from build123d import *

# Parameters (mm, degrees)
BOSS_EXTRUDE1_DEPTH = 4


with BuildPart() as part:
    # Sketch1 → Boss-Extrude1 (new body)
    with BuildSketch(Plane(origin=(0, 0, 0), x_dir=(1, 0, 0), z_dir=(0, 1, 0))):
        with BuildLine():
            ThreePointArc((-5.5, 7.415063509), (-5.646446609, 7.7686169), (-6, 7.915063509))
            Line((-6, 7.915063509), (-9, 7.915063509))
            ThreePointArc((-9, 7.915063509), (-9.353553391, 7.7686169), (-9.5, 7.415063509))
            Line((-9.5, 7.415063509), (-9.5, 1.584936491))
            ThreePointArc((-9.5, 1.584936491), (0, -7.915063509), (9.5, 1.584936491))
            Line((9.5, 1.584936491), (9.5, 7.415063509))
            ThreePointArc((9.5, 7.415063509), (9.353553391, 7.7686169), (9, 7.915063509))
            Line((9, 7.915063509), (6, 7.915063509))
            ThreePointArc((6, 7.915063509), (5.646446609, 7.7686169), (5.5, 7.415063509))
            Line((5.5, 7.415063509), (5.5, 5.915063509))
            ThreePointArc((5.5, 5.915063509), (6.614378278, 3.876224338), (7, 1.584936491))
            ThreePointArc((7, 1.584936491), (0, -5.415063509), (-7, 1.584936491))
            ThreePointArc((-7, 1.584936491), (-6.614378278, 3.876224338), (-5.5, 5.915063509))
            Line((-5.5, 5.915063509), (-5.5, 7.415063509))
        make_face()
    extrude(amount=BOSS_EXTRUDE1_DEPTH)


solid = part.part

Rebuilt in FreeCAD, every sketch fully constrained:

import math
import FreeCAD as App
import Part
import Sketcher
Q = App.Units.Quantity

doc = App.newDocument("Part")
body = doc.addObject("PartDesign::Body", "Body")

sketch1 = doc.addObject("Sketcher::SketchObject", "Sketch")
body.addObject(sketch1)
sketch1.AttachmentSupport = (doc.XZ_Plane, [""])
sketch1.MapMode = "FlatFace"
sketch1.addGeometry([
    Part.ArcOfCircle(Part.Circle(App.Vector(-6, -7.415064, 0), App.Vector(0, 0, 1), 0.5), math.radians(-90), math.radians(0)),
    Part.LineSegment(App.Vector(-6, -7.915064, 0), App.Vector(-9, -7.915064, 0)),
    Part.ArcOfCircle(Part.Circle(App.Vector(-9, -7.415064, 0), App.Vector(0, 0, 1), 0.5), math.radians(180), math.radians(270)),
    Part.LineSegment(App.Vector(-9.5, -7.415064, 0), App.Vector(-9.5, -1.584936, 0)),
    Part.ArcOfCircle(Part.Circle(App.Vector(0, -1.584936, 0), App.Vector(0, 0, 1), 9.5), math.radians(0), math.radians(180)),
    Part.LineSegment(App.Vector(9.5, -1.584936, 0), App.Vector(9.5, -7.415064, 0)),
    Part.ArcOfCircle(Part.Circle(App.Vector(9, -7.415064, 0), App.Vector(0, 0, 1), 0.5), math.radians(-90), math.radians(0)),
    Part.LineSegment(App.Vector(9, -7.915064, 0), App.Vector(6, -7.915064, 0)),
    Part.ArcOfCircle(Part.Circle(App.Vector(6, -7.415064, 0), App.Vector(0, 0, 1), 0.5), math.radians(180), math.radians(270)),
    Part.LineSegment(App.Vector(5.5, -7.415064, 0), App.Vector(5.5, -5.915064, 0)),
    Part.ArcOfCircle(Part.Circle(App.Vector(0, -1.584936, 0), App.Vector(0, 0, 1), 7), math.radians(-38.213211), math.radians(0)),
    Part.ArcOfCircle(Part.Circle(App.Vector(0, -1.584936, 0), App.Vector(0, 0, 1), 7), math.radians(0), math.radians(180)),
    Part.ArcOfCircle(Part.Circle(App.Vector(0, -1.584936, 0), App.Vector(0, 0, 1), 7), math.radians(180), math.radians(218.213211)),
    Part.LineSegment(App.Vector(-5.5, -5.915064, 0), App.Vector(-5.5, -7.415064, 0)),
], False)
sketch1.addConstraint([
    Sketcher.Constraint("Tangent", 0, 1, 1, 1),
    Sketcher.Constraint("Tangent", 1, 2, 2, 2),
    Sketcher.Constraint("Tangent", 2, 1, 3, 1),
    Sketcher.Constraint("Tangent", 3, 2, 4, 2),
    Sketcher.Constraint("Tangent", 4, 1, 5, 1),
    Sketcher.Constraint("Tangent", 5, 2, 6, 2),
    Sketcher.Constraint("Tangent", 6, 1, 7, 1),
    Sketcher.Constraint("Tangent", 7, 2, 8, 2),
    Sketcher.Constraint("Tangent", 8, 1, 9, 1),
    Sketcher.Constraint("Coincident", 9, 2, 10, 1),
    Sketcher.Constraint("Tangent", 10, 2, 11, 1),
    Sketcher.Constraint("Tangent", 11, 2, 12, 1),
    Sketcher.Constraint("Coincident", 12, 2, 13, 1),
    Sketcher.Constraint("Tangent", 13, 2, 0, 2),
    Sketcher.Constraint("Horizontal", 1),
    Sketcher.Constraint("Vertical", 3),
    Sketcher.Constraint("Vertical", 5),
    Sketcher.Constraint("Horizontal", 7),
    Sketcher.Constraint("Vertical", 9),
    Sketcher.Constraint("Vertical", 13),
    Sketcher.Constraint("Coincident", 10, 3, 4, 3),
    Sketcher.Constraint("Equal", 0, 2),
    Sketcher.Constraint("Equal", 2, 6),
    Sketcher.Constraint("Equal", 6, 8),
    Sketcher.Constraint("Equal", 10, 11),
    Sketcher.Constraint("Equal", 11, 12),
    Sketcher.Constraint("Symmetric", 2, 3, 6, 3, -2),
    Sketcher.Constraint("Horizontal", 4, 1, 10, 2),
    Sketcher.Constraint("Horizontal", 10, 2, 11, 2),
    Sketcher.Constraint("Horizontal", 9, 2, 12, 2),
    Sketcher.Constraint("Radius", 10, Q("7 mm")),
    Sketcher.Constraint("Radius", 0, Q("0.5 mm")),
    Sketcher.Constraint("Radius", 4, Q("9.5 mm")),
    Sketcher.Constraint("DistanceX", 1, 2, 1, 1, Q("3 mm")),
    Sketcher.Constraint("DistanceY", 9, 1, 9, 2, Q("1.5 mm")),
    Sketcher.Constraint("DistanceY", 0, 3, -1, 1, Q("7.415064 mm")),
])
pad1 = doc.addObject("PartDesign::Pad", "Pad")
body.addObject(pad1)
pad1.Profile = sketch1
pad1.Length = 4
pad1.Reversed = True

doc.recompute()
